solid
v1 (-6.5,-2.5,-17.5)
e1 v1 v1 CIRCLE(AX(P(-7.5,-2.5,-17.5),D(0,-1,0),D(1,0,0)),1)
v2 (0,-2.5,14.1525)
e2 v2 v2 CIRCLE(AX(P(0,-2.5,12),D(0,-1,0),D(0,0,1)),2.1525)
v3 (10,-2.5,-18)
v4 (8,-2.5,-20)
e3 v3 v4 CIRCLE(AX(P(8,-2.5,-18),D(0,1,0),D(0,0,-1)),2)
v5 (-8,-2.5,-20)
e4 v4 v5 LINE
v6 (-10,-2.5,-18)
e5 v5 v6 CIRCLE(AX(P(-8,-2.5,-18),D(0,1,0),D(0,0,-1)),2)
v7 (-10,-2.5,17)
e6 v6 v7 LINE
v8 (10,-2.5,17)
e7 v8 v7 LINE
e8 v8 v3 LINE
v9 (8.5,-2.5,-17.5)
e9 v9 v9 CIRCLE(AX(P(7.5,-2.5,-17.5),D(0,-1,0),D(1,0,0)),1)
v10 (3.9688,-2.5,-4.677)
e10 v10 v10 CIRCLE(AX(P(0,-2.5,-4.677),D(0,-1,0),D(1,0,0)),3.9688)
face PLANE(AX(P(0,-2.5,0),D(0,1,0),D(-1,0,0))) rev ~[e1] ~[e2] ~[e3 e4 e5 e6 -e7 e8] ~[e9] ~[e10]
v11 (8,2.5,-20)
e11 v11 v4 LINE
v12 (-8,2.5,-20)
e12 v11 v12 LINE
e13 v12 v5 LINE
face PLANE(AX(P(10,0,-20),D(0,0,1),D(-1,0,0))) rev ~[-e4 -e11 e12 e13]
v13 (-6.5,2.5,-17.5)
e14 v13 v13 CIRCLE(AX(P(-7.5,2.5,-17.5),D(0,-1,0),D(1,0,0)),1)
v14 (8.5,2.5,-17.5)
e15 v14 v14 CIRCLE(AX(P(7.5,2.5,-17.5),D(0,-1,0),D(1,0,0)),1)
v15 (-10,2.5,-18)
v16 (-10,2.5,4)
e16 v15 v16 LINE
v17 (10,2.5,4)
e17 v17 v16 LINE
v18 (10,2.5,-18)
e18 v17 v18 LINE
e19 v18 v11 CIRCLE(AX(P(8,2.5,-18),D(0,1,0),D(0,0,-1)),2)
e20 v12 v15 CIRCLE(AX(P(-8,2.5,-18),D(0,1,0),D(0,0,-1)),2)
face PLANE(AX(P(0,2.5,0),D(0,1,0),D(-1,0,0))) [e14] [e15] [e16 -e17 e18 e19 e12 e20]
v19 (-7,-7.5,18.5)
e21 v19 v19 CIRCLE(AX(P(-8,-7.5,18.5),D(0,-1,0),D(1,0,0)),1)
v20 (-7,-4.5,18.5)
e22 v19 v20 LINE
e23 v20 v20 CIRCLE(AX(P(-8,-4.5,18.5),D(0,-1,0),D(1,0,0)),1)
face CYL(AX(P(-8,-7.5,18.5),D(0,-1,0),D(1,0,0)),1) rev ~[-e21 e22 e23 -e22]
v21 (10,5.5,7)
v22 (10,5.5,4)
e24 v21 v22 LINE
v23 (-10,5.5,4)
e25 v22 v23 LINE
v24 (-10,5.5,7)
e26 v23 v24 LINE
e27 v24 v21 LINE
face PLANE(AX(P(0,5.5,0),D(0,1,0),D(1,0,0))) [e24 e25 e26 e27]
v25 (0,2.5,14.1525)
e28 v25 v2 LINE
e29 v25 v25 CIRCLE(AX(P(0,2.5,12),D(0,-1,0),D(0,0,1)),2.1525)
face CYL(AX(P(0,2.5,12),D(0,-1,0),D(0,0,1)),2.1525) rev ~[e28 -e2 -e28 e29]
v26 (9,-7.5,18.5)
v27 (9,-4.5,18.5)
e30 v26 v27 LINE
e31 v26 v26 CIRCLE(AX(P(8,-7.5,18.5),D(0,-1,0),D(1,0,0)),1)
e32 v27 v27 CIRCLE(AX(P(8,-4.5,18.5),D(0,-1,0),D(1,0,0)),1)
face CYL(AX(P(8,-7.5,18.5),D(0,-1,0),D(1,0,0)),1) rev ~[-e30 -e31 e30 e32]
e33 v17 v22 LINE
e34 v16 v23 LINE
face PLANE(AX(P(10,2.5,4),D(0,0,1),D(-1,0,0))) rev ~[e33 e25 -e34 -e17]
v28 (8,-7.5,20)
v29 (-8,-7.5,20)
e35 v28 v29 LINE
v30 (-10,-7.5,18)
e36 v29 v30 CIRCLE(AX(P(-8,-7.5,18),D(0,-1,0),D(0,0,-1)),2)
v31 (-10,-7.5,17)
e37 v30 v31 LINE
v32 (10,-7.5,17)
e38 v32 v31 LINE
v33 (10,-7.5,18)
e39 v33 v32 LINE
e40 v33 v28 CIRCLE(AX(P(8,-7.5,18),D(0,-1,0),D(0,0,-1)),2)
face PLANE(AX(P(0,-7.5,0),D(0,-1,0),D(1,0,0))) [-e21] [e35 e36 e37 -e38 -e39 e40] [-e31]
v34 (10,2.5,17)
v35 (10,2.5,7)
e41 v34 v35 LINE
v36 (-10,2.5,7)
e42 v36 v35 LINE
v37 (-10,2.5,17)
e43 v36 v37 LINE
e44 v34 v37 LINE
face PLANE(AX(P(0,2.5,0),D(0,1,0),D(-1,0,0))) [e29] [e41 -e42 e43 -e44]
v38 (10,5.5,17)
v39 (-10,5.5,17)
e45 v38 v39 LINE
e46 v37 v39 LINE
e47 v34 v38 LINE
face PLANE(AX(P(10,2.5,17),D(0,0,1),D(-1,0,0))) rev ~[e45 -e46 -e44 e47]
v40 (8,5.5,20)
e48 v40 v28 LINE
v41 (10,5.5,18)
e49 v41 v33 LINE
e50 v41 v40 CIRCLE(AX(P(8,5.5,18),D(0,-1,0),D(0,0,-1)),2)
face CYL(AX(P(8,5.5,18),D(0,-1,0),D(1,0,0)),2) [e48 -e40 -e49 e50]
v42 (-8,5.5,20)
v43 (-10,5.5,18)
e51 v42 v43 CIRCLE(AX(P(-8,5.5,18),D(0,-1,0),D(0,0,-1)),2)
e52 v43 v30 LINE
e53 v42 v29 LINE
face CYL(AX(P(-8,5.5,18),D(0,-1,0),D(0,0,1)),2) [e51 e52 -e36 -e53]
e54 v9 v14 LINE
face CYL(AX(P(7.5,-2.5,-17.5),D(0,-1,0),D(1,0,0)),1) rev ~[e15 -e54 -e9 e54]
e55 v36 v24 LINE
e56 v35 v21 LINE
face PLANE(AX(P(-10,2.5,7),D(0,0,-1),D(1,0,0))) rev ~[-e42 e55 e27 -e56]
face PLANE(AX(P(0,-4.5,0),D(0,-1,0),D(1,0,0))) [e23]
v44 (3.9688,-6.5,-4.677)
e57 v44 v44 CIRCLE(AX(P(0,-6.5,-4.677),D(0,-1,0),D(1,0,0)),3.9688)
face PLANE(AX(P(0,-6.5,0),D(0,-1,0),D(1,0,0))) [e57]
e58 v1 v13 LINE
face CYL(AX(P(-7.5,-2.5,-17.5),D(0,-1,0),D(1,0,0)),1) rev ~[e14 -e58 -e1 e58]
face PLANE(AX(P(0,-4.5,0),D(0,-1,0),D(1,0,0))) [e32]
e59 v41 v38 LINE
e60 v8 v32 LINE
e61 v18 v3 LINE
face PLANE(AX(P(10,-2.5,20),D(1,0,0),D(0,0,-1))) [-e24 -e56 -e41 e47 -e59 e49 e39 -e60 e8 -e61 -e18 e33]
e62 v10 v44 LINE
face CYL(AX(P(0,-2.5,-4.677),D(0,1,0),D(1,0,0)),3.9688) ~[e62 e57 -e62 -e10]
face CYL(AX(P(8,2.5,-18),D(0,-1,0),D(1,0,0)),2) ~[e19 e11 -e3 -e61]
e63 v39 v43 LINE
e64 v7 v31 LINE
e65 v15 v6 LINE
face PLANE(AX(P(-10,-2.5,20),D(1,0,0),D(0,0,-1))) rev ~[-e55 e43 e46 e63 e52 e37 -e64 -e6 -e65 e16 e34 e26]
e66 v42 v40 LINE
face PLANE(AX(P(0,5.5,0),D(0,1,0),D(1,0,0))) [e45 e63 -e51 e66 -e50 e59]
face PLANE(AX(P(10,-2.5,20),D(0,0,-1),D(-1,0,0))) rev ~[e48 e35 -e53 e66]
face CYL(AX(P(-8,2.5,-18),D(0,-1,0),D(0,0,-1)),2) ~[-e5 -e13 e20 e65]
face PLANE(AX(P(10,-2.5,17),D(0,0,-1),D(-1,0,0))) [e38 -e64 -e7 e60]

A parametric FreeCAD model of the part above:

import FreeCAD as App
import Part
import Sketcher
from FreeCAD import Vector
Q = App.Units.Quantity


def edges_at(feature, points):
    """Names of the edges that pass closest to the given points."""
    edges = feature.Shape.Edges
    near = lambda p: min(range(len(edges)), key=lambda i: edges[i].distToShape(Part.Vertex(*p))[0])
    return sorted({f"Edge{near(p) + 1}" for p in points})


def add_polygon(sketch, points):
    """Adds a closed chain of lines whose ends are joined by coincident constraints."""
    first, n = sketch.GeometryCount, len(points)
    for a, b in zip(points, points[1:] + points[:1]):
        sketch.addGeometry(Part.LineSegment(App.Vector(*a, 0), App.Vector(*b, 0)), False)
    for i in range(n):
        sketch.addConstraint(Sketcher.Constraint("Coincident", first + i, 2, first + (i + 1) % n, 1))

doc = App.newDocument("Part")
body = doc.addObject("PartDesign::Body", "Body")

sketch1 = body.newObject("Sketcher::SketchObject", "Sketch")
sketch1.AttachmentSupport = (doc.getObject("XZ_Plane"), [""])
sketch1.MapMode = "FlatFace"
add_polygon(sketch1, [(-10, -20), (-10, 20), (10, 20), (10, -20)])
sketch1.addConstraint(Sketcher.Constraint("Vertical", 0))
sketch1.addConstraint(Sketcher.Constraint("Horizontal", 1))
sketch1.addConstraint(Sketcher.Constraint("Vertical", 2))
sketch1.addConstraint(Sketcher.Constraint("Horizontal", 3))
sketch1.addConstraint(Sketcher.Constraint("Symmetric", 0, 2, 2, 2, -1, 1))
sketch1.addConstraint(Sketcher.Constraint("DistanceX", 1, 1, 1, 2, Q("20 mm")))
sketch1.addConstraint(Sketcher.Constraint("DistanceY", 0, 1, 0, 2, Q("40 mm")))
pad1 = body.newObject("PartDesign::Pad", "Pad")
pad1.Profile = sketch1
pad1.Length = 5
pad1.Midplane = True

sketch2 = body.newObject("Sketcher::SketchObject", "Sketch001")
sketch2.AttachmentSupport = (doc.getObject("XZ_Plane"), [""])
sketch2.MapMode = "FlatFace"
sketch2.AttachmentOffset = App.Placement(Vector(0, 0, -2.5), App.Rotation())
add_polygon(sketch2, [(10, 7), (10, 4), (-10, 4), (-10, 7)])
add_polygon(sketch2, [(10, 20), (10, 17), (-10, 17), (-10, 20)])
sketch2.addConstraint(Sketcher.Constraint("Vertical", 0))
sketch2.addConstraint(Sketcher.Constraint("Horizontal", 1))
sketch2.addConstraint(Sketcher.Constraint("Vertical", 2))
sketch2.addConstraint(Sketcher.Constraint("Horizontal", 3))
sketch2.addConstraint(Sketcher.Constraint("Vertical", 4))
sketch2.addConstraint(Sketcher.Constraint("Horizontal", 5))
sketch2.addConstraint(Sketcher.Constraint("Vertical", 6))
sketch2.addConstraint(Sketcher.Constraint("Horizontal", 7))
sketch2.addConstraint(Sketcher.Constraint("Vertical", 3, 2, 4, 2))
sketch2.addConstraint(Sketcher.Constraint("Vertical", 2, 2, 5, 2))
sketch2.addConstraint(Sketcher.Constraint("Equal", 2, 4))
sketch2.addConstraint(Sketcher.Constraint("DistanceY", 0, 2, 0, 1, Q("3 mm")))
sketch2.addConstraint(Sketcher.Constraint("DistanceX", -1, 1, 0, 2, Q("10 mm")))
sketch2.addConstraint(Sketcher.Constraint("DistanceX", 1, 2, -1, 1, Q("10 mm")))
sketch2.addConstraint(Sketcher.Constraint("DistanceY", 3, 2, 4, 2, Q("10 mm")))
sketch2.addConstraint(Sketcher.Constraint("DistanceY", -1, 1, 0, 2, Q("4 mm")))
pad2 = body.newObject("PartDesign::Pad", "Pad001")
pad2.Profile = sketch2
pad2.Length = 3
pad2.Reversed = True

sketch3 = body.newObject("Sketcher::SketchObject", "Sketch002")
sketch3.AttachmentSupport = (doc.getObject("XZ_Plane"), [""])
sketch3.MapMode = "FlatFace"
sketch3.AttachmentOffset = App.Placement(Vector(0, 0, -2.5), App.Rotation())
sketch3.addGeometry(Part.Circle(Vector(0, 12, 0), Vector(0, 0, 1), 2.1525), False)
sketch3.addConstraint(Sketcher.Constraint("PointOnObject", 0, 3, -2))
sketch3.addConstraint(Sketcher.Constraint("Diameter", 0, Q("4.305 mm")))
sketch3.addConstraint(Sketcher.Constraint("DistanceY", -1, 1, 0, 3, Q("12 mm")))
doc.recompute()
hole = body.newObject("PartDesign::Hole", "Hole")
hole.Profile = sketch3
hole.ThreadType = "None"
hole.Diameter = 4.305
hole.DepthType = "ThroughAll"
hole.Reversed = True

sketch4 = body.newObject("Sketcher::SketchObject", "Sketch003")
sketch4.AttachmentSupport = (doc.getObject("XZ_Plane"), [""])
sketch4.MapMode = "FlatFace"
sketch4.AttachmentOffset = App.Placement(Vector(0, 0, 2.5), App.Rotation())
sketch4.addGeometry(Part.Circle(Vector(0, -4.677, 0), Vector(0, 0, 1), 3.9688), False)
sketch4.addConstraint(Sketcher.Constraint("PointOnObject", 0, 3, -2))
sketch4.addConstraint(Sketcher.Constraint("Diameter", 0, Q("7.9376 mm")))
sketch4.addConstraint(Sketcher.Constraint("DistanceY", 0, 3, -1, 1, Q("4.677 mm")))
pad3 = body.newObject("PartDesign::Pad", "Pad002")
pad3.Profile = sketch4
pad3.Length = 4

sketch5 = body.newObject("Sketcher::SketchObject", "Sketch004")
sketch5.AttachmentSupport = (doc.getObject("XZ_Plane"), [""])
sketch5.MapMode = "FlatFace"
sketch5.AttachmentOffset = App.Placement(Vector(0, 0, 2.5), App.Rotation())
sketch5.addGeometry(Part.Circle(Vector(7.5, -17.5, 0), Vector(0, 0, 1), 1), False)
sketch5.addGeometry(Part.Circle(Vector(-7.5, -17.5, 0), Vector(0, 0, 1), 1), False)
sketch5.addConstraint(Sketcher.Constraint("Equal", 0, 1))
sketch5.addConstraint(Sketcher.Constraint("Symmetric", 0, 3, 1, 3, -2))
sketch5.addConstraint(Sketcher.Constraint("Diameter", 0, Q("2 mm")))
sketch5.addConstraint(Sketcher.Constraint("DistanceX", 1, 3, 0, 3, Q("15 mm")))
sketch5.addConstraint(Sketcher.Constraint("DistanceY", 0, 3, -1, 1, Q("17.5 mm")))
pocket1 = body.newObject("PartDesign::Pocket", "Pocket")
pocket1.Profile = sketch5
pocket1.Type = "ThroughAll"

sketch6 = body.newObject("Sketcher::SketchObject", "Sketch005")
sketch6.AttachmentSupport = (doc.getObject("XZ_Plane"), [""])
sketch6.MapMode = "FlatFace"
sketch6.AttachmentOffset = App.Placement(Vector(0, 0, 2.5), App.Rotation())
add_polygon(sketch6, [(10, 17), (10, 20), (-10, 20), (-10, 17)])
sketch6.addConstraint(Sketcher.Constraint("Vertical", 0))
sketch6.addConstraint(Sketcher.Constraint("Horizontal", 1))
sketch6.addConstraint(Sketcher.Constraint("Vertical", 2))
sketch6.addConstraint(Sketcher.Constraint("Horizontal", 3))
sketch6.addConstraint(Sketcher.Constraint("DistanceX", 1, 2, 1, 1, Q("20 mm")))
sketch6.addConstraint(Sketcher.Constraint("DistanceY", 0, 1, 0, 2, Q("3 mm")))
sketch6.addConstraint(Sketcher.Constraint("DistanceX", -1, 1, 0, 2, Q("10 mm")))
sketch6.addConstraint(Sketcher.Constraint("DistanceY", -1, 1, 0, 2, Q("20 mm")))
pad4 = body.newObject("PartDesign::Pad", "Pad003")
pad4.Profile = sketch6
pad4.Length = 5

sketch7 = body.newObject("Sketcher::SketchObject", "Sketch006")
sketch7.AttachmentSupport = (doc.getObject("XZ_Plane"), [""])
sketch7.MapMode = "FlatFace"
sketch7.AttachmentOffset = App.Placement(Vector(0, 0, 7.5), App.Rotation())
sketch7.addGeometry(Part.Circle(Vector(8, 18.5, 0), Vector(0, 0, 1), 1), False)
sketch7.addGeometry(Part.Circle(Vector(-8, 18.5, 0), Vector(0, 0, 1), 1), False)
sketch7.addConstraint(Sketcher.Constraint("Equal", 0, 1))
sketch7.addConstraint(Sketcher.Constraint("Symmetric", 0, 3, 1, 3, -2))
sketch7.addConstraint(Sketcher.Constraint("Diameter", 0, Q("2 mm")))
sketch7.addConstraint(Sketcher.Constraint("DistanceX", -1, 1, 0, 3, Q("8 mm")))
sketch7.addConstraint(Sketcher.Constraint("DistanceY", -1, 1, 0, 3, Q("18.5 mm")))
pocket2 = body.newObject("PartDesign::Pocket", "Pocket001")
pocket2.Profile = sketch7
pocket2.Length = 3
doc.recompute()

fillet = body.newObject("PartDesign::Fillet", "Fillet")
fillet.Base = (pocket2, edges_at(pocket2, [
    (-10, -1, 20),
    (-10, 0, -20),
    (10, 0, -20),
    (10, -1, 20),
]))
fillet.Radius = 2

doc.recompute()
